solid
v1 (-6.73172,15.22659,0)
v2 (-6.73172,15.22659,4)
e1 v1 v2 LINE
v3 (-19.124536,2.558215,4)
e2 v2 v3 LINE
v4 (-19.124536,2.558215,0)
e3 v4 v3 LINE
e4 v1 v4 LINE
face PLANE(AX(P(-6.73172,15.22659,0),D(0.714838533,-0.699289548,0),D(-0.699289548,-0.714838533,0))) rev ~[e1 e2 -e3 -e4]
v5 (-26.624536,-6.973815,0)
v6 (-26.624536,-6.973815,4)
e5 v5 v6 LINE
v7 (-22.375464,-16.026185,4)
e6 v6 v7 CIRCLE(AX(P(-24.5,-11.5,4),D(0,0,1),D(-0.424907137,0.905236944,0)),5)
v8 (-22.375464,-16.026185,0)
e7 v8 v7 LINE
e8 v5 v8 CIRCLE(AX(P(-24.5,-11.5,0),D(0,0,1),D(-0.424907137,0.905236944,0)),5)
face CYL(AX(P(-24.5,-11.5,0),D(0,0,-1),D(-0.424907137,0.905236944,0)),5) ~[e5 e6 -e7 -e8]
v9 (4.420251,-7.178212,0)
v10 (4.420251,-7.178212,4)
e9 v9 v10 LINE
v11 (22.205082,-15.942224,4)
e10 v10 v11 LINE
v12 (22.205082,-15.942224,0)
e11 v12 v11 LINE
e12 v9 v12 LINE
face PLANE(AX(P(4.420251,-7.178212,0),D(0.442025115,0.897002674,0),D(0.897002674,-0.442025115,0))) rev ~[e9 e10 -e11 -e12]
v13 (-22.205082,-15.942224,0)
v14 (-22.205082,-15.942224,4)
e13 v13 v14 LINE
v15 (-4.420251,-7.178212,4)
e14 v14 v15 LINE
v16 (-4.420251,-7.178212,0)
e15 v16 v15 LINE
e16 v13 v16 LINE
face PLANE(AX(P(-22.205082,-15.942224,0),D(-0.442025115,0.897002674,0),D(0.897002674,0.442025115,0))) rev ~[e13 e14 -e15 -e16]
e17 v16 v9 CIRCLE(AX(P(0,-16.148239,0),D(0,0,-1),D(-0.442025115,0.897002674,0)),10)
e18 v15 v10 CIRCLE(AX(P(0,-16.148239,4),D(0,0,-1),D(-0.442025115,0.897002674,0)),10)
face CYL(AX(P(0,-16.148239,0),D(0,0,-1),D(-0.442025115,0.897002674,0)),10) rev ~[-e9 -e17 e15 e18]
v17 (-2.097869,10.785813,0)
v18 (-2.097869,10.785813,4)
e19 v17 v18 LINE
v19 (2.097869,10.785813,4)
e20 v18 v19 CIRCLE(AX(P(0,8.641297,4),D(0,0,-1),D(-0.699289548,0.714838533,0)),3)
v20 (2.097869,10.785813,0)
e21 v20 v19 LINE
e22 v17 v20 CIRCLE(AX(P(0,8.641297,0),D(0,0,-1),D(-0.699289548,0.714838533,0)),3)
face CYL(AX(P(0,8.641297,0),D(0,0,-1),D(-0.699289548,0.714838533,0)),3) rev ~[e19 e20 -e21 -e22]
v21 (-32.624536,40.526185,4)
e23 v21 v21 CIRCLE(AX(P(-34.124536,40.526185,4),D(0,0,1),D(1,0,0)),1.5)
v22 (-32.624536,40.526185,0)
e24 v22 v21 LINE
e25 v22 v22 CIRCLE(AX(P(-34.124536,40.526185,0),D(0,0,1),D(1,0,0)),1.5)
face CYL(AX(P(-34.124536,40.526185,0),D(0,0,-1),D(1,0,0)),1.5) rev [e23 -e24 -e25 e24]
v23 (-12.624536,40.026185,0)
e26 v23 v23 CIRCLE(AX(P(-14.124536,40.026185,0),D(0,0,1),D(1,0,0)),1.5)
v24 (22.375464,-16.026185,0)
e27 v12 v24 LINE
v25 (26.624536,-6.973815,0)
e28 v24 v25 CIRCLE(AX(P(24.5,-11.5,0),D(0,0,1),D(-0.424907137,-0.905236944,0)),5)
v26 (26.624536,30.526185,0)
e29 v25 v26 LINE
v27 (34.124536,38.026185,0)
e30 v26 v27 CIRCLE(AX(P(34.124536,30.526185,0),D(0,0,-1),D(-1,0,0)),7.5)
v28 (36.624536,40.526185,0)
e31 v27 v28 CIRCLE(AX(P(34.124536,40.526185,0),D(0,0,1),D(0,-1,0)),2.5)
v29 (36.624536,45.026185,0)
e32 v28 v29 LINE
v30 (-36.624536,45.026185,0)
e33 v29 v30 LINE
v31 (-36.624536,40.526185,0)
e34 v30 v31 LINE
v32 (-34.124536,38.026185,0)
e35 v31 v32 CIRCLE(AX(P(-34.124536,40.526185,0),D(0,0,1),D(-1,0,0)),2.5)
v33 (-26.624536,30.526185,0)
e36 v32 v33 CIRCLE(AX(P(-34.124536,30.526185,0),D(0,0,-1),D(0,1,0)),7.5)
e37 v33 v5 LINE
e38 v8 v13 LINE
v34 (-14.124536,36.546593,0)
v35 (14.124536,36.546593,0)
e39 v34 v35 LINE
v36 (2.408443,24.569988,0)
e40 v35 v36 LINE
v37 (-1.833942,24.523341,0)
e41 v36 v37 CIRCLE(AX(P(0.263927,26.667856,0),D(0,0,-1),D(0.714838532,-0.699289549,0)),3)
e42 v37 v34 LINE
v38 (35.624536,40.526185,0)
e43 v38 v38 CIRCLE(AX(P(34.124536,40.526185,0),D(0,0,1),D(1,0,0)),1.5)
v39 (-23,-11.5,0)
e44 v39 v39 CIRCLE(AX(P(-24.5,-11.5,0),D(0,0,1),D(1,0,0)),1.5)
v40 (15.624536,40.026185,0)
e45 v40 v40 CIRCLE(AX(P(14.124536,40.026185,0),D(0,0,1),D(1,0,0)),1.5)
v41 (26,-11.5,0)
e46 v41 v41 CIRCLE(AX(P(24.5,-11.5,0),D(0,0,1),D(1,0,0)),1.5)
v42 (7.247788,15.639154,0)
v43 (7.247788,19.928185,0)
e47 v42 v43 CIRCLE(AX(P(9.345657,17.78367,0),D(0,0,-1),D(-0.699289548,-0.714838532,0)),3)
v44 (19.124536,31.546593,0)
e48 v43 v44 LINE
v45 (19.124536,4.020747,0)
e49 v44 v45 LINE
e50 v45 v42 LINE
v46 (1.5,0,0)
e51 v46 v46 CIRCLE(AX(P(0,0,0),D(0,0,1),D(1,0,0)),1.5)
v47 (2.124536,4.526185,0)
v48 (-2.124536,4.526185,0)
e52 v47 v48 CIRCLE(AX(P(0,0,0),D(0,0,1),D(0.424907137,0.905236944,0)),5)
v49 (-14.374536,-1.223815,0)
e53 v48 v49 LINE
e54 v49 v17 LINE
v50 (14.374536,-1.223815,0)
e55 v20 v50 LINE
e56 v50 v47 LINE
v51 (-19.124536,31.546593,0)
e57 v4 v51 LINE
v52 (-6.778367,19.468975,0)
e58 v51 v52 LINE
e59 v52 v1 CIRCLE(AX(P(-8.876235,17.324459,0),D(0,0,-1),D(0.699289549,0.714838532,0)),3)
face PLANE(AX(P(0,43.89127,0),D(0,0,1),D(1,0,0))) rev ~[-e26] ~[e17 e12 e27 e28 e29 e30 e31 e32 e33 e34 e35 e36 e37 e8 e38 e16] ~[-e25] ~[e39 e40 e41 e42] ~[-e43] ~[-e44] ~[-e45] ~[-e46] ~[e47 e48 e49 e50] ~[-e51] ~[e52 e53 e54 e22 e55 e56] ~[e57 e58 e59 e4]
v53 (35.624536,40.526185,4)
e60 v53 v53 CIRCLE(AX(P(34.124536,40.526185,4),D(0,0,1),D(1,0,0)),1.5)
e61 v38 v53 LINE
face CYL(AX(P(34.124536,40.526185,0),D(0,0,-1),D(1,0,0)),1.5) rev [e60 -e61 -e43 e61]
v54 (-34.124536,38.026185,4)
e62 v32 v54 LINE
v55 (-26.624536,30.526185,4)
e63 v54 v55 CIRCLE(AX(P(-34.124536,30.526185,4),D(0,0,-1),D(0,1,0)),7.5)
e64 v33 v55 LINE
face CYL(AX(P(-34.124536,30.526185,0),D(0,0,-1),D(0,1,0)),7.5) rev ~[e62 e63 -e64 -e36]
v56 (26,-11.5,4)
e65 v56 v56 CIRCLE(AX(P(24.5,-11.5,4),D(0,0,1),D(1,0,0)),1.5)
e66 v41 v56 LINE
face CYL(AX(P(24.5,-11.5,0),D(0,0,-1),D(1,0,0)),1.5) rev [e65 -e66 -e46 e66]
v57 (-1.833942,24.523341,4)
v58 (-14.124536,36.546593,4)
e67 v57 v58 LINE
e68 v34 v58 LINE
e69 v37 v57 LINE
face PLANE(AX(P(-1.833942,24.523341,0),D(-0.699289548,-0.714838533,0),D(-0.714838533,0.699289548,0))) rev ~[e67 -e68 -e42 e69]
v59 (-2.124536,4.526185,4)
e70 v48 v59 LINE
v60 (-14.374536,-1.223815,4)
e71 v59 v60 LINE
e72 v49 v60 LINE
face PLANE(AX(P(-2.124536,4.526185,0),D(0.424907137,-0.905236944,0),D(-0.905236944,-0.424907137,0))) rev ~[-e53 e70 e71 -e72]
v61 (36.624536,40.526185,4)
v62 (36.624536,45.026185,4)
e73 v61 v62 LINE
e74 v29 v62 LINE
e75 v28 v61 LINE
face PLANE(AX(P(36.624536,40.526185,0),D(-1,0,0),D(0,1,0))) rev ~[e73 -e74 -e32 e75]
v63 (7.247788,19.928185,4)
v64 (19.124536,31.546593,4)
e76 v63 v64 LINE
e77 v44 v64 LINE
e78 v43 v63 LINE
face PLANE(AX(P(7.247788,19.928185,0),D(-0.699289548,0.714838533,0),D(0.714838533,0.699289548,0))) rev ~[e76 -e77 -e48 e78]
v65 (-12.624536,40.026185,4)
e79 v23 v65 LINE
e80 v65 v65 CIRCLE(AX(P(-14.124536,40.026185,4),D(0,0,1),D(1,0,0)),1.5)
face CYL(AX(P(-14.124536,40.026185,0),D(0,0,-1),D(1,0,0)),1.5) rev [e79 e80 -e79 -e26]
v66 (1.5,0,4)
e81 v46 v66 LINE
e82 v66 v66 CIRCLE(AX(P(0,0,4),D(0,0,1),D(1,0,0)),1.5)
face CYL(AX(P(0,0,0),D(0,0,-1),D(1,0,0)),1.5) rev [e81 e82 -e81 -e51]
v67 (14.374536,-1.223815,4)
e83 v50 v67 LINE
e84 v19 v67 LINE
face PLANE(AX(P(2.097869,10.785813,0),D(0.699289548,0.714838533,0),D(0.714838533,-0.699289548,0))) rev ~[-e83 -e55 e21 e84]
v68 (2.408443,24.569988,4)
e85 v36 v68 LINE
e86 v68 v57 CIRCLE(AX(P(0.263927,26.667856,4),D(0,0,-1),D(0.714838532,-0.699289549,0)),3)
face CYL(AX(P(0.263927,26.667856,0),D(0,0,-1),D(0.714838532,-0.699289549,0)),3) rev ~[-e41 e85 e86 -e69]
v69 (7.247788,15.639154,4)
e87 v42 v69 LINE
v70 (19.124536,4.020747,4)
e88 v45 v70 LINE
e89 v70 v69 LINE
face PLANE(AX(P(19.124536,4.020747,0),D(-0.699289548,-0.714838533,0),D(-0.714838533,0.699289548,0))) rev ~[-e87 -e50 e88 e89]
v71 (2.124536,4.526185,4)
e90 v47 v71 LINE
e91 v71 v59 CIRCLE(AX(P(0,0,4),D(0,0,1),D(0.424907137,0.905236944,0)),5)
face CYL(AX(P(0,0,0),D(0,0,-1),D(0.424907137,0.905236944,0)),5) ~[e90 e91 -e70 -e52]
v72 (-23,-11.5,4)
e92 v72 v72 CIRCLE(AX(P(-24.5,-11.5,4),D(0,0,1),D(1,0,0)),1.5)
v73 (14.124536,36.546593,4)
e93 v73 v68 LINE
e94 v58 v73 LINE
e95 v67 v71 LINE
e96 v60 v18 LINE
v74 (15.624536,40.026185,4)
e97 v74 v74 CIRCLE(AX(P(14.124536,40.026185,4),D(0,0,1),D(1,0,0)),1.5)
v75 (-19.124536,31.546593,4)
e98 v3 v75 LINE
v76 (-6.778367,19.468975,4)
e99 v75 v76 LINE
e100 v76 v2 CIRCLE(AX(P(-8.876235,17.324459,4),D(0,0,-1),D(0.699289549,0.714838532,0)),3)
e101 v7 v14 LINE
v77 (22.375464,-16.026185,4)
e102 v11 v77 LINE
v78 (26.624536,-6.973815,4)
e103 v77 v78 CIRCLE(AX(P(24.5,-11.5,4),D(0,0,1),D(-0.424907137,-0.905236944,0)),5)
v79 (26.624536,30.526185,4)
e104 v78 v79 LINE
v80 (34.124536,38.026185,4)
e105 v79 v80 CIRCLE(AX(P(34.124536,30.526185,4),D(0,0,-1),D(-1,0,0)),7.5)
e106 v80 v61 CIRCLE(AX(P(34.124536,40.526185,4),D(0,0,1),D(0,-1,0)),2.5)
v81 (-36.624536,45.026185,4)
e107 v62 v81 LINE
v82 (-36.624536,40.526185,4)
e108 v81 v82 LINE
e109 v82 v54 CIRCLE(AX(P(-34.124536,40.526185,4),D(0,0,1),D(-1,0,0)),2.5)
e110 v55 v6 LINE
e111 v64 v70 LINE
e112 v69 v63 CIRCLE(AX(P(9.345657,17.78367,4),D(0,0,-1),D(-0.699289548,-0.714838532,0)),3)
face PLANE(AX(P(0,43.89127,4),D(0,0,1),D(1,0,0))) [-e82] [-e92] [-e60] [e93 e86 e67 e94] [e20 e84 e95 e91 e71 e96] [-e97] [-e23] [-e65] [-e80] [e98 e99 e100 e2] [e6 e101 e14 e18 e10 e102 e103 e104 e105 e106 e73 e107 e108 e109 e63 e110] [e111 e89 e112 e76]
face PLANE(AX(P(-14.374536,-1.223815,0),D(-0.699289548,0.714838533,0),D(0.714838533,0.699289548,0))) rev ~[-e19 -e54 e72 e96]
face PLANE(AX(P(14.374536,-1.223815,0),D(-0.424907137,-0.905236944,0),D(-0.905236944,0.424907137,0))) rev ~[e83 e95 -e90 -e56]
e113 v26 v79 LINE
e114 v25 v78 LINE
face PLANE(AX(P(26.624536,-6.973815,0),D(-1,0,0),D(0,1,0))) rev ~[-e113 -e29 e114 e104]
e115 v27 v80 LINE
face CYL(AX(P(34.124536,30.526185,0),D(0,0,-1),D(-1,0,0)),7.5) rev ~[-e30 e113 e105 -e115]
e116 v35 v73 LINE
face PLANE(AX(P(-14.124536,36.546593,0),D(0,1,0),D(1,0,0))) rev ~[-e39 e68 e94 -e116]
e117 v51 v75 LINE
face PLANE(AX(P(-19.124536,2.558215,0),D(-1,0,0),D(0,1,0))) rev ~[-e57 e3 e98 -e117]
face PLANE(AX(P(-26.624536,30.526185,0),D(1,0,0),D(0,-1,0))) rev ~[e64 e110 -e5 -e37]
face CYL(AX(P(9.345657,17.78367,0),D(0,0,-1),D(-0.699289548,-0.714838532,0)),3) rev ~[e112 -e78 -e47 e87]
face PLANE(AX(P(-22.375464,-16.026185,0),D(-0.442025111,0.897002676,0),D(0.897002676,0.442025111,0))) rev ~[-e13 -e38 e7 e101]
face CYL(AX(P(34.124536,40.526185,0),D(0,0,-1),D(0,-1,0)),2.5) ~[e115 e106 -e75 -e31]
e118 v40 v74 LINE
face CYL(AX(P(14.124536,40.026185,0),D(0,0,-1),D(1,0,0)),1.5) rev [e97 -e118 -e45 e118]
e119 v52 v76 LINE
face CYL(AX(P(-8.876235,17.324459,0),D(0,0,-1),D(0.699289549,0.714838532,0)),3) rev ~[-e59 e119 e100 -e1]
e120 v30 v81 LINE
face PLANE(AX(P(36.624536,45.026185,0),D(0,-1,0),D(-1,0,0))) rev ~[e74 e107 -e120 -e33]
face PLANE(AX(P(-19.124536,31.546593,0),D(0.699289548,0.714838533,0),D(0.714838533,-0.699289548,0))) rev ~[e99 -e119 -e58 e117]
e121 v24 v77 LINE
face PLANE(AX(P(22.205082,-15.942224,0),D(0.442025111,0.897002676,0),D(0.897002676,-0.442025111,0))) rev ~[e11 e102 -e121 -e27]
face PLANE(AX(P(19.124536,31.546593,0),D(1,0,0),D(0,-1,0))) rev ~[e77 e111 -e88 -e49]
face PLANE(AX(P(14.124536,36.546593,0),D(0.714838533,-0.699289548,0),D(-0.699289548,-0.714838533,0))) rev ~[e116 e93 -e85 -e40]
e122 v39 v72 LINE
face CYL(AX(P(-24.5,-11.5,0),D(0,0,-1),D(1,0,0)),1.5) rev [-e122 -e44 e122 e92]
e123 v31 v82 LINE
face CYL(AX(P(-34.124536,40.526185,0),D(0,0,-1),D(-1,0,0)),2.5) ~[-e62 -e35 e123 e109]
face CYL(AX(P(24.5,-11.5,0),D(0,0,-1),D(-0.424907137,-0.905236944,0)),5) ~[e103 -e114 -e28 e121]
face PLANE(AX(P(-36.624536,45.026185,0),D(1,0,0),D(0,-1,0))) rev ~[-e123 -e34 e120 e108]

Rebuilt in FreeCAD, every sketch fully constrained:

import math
import FreeCAD as App
import Part
import Sketcher

V = App.Vector
Q = App.Units.Quantity

doc = App.newDocument("Part")
params = doc.addObject("Spreadsheet::Sheet", "Params")
for row, (alias, value) in enumerate([
    ("sketch1_diameter", "3 mm"),
    ("sketch1_radius", "5 mm"),
    ("sketch1_radius2", "10 mm"),
    ("sketch1_radius3", "3 mm"),
    ("sketch1_radius4", "2.5 mm"),
    ("pad1_length", "4 mm"),
], start=1):
    params.set(f"A{row}", alias)
    params.set(f"B{row}", "=" + value)
    params.setAlias(f"B{row}", alias)

body = doc.addObject("PartDesign::Body", "Body")

sketch1 = doc.addObject("Sketcher::SketchObject", "Sketch")
body.addObject(sketch1)
sketch1.AttachmentSupport = (doc.XY_Plane, [""])
sketch1.MapMode = "FlatFace"
sketch1.addGeometry([
    Part.ArcOfCircle(Part.Circle(V(-34.12, 40.53, 0), V(0, 0, 1), 2.5), math.radians(180), math.radians(270)),
    Part.ArcOfCircle(Part.Circle(V(-34.12, 30.53, 0), V(0, 0, 1), 7.5), math.radians(0), math.radians(90)),
    Part.LineSegment(V(-26.62, 30.53, 0), V(-26.62, -6.97, 0)),
    Part.ArcOfCircle(Part.Circle(V(-24.5, -11.5, 0), V(0, 0, 1), 5), math.radians(115), math.radians(295)),
    Part.LineSegment(V(-22.38, -16.03, 0), V(-22.21, -15.94, 0)),
    Part.LineSegment(V(-22.21, -15.94, 0), V(-4.42, -7.18, 0)),
    Part.ArcOfCircle(Part.Circle(V(0, -16.15, 0), V(0, 0, 1), 10), math.radians(64), math.radians(116)),
    Part.LineSegment(V(4.42, -7.18, 0), V(22.21, -15.94, 0)),
    Part.LineSegment(V(22.21, -15.94, 0), V(22.38, -16.03, 0)),
    Part.ArcOfCircle(Part.Circle(V(24.5, -11.5, 0), V(0, 0, 1), 5), math.radians(-115), math.radians(65)),
    Part.LineSegment(V(26.62, -6.97, 0), V(26.62, 30.53, 0)),
    Part.ArcOfCircle(Part.Circle(V(34.12, 30.53, 0), V(0, 0, 1), 7.5), math.radians(90), math.radians(180)),
    Part.ArcOfCircle(Part.Circle(V(34.12, 40.53, 0), V(0, 0, 1), 2.5), math.radians(-90), math.radians(0)),
    Part.LineSegment(V(36.62, 40.53, 0), V(36.62, 45.03, 0)),
    Part.LineSegment(V(36.62, 45.03, 0), V(-36.62, 45.03, 0)),
    Part.LineSegment(V(-36.62, 45.03, 0), V(-36.62, 40.53, 0)),
    Part.Circle(V(-24.5, -11.5, 0), V(0, 0, 1), 1.5),
    Part.Circle(V(0, 0, 0), V(0, 0, 1), 1.5),
    Part.Circle(V(24.5, -11.5, 0), V(0, 0, 1), 1.5),
    Part.LineSegment(V(2.1, 10.79, 0), V(14.37, -1.22, 0)),
    Part.LineSegment(V(14.37, -1.22, 0), V(2.12, 4.53, 0)),
    Part.ArcOfCircle(Part.Circle(V(0, 0, 0), V(0, 0, 1), 5), math.radians(65), math.radians(115)),
    Part.LineSegment(V(-2.12, 4.53, 0), V(-14.37, -1.22, 0)),
    Part.LineSegment(V(-14.37, -1.22, 0), V(-2.1, 10.79, 0)),
    Part.ArcOfCircle(Part.Circle(V(0, 8.64, 0), V(0, 0, 1), 3), math.radians(46), math.radians(134)),
    Part.ArcOfCircle(Part.Circle(V(-8.88, 17.32, 0), V(0, 0, 1), 3), math.radians(-44), math.radians(46)),
    Part.LineSegment(V(-6.73, 15.23, 0), V(-19.12, 2.56, 0)),
    Part.LineSegment(V(-19.12, 2.56, 0), V(-19.12, 31.55, 0)),
    Part.LineSegment(V(-19.12, 31.55, 0), V(-6.78, 19.47, 0)),
    Part.Circle(V(-34.12, 40.53, 0), V(0, 0, 1), 1.5),
    Part.Circle(V(-14.12, 40.03, 0), V(0, 0, 1), 1.5),
    Part.LineSegment(V(7.25, 19.93, 0), V(19.12, 31.55, 0)),
    Part.LineSegment(V(19.12, 31.55, 0), V(19.12, 4.02, 0)),
    Part.LineSegment(V(19.12, 4.02, 0), V(7.25, 15.64, 0)),
    Part.ArcOfCircle(Part.Circle(V(9.35, 17.78, 0), V(0, 0, 1), 3), math.radians(134), math.radians(226)),
    Part.ArcOfCircle(Part.Circle(V(0.26, 26.67, 0), V(0, 0, 1), 3), math.radians(-134), math.radians(-44)),
    Part.LineSegment(V(-1.83, 24.52, 0), V(-14.12, 36.55, 0)),
    Part.LineSegment(V(-14.12, 36.55, 0), V(14.12, 36.55, 0)),
    Part.LineSegment(V(14.12, 36.55, 0), V(2.41, 24.57, 0)),
    Part.Circle(V(14.12, 40.03, 0), V(0, 0, 1), 1.5),
    Part.Circle(V(34.12, 40.53, 0), V(0, 0, 1), 1.5),
], False)
sketch1.addConstraint([
    Sketcher.Constraint("Tangent", 0, 2, 1, 2),
    Sketcher.Constraint("Tangent", 1, 1, 2, 1),
    Sketcher.Constraint("Coincident", 2, 2, 3, 1),
    Sketcher.Constraint("Coincident", 3, 2, 4, 1),
    Sketcher.Constraint("Coincident", 4, 2, 5, 1),
    Sketcher.Constraint("Tangent", 5, 2, 6, 2),
    Sketcher.Constraint("Tangent", 6, 1, 7, 1),
    Sketcher.Constraint("Coincident", 7, 2, 8, 1),
    Sketcher.Constraint("Coincident", 8, 2, 9, 1),
    Sketcher.Constraint("Coincident", 9, 2, 10, 1),
    Sketcher.Constraint("Tangent", 10, 2, 11, 2),
    Sketcher.Constraint("Tangent", 11, 1, 12, 1),
    Sketcher.Constraint("Tangent", 12, 2, 13, 1),
    Sketcher.Constraint("Coincident", 13, 2, 14, 1),
    Sketcher.Constraint("Coincident", 14, 2, 15, 1),
    Sketcher.Constraint("Tangent", 15, 2, 0, 1),
    Sketcher.Constraint("Coincident", 19, 2, 20, 1),
    Sketcher.Constraint("Tangent", 20, 2, 21, 1),
    Sketcher.Constraint("Tangent", 21, 2, 22, 1),
    Sketcher.Constraint("Coincident", 22, 2, 23, 1),
    Sketcher.Constraint("Tangent", 23, 2, 24, 2),
    Sketcher.Constraint("Tangent", 24, 1, 19, 1),
    Sketcher.Constraint("Tangent", 25, 1, 26, 1),
    Sketcher.Constraint("Coincident", 26, 2, 27, 1),
    Sketcher.Constraint("Coincident", 27, 2, 28, 1),
    Sketcher.Constraint("Tangent", 28, 2, 25, 2),
    Sketcher.Constraint("Coincident", 31, 2, 32, 1),
    Sketcher.Constraint("Coincident", 32, 2, 33, 1),
    Sketcher.Constraint("Tangent", 33, 2, 34, 2),
    Sketcher.Constraint("Tangent", 34, 1, 31, 1),
    Sketcher.Constraint("Tangent", 35, 1, 36, 1),
    Sketcher.Constraint("Coincident", 36, 2, 37, 1),
    Sketcher.Constraint("Coincident", 37, 2, 38, 1),
    Sketcher.Constraint("Tangent", 38, 2, 35, 2),
    Sketcher.Constraint("Vertical", 2),
    Sketcher.Constraint("Vertical", 10),
    Sketcher.Constraint("Vertical", 13),
    Sketcher.Constraint("Horizontal", 14),
    Sketcher.Constraint("Vertical", 15),
    Sketcher.Constraint("Vertical", 27),
    Sketcher.Constraint("Vertical", 32),
    Sketcher.Constraint("Horizontal", 37),
    Sketcher.Constraint("Coincident", 17, 3, -1, 1),
    Sketcher.Constraint("Coincident", 21, 3, -1, 1),
    Sketcher.Constraint("Coincident", 16, 3, 3, 3),
    Sketcher.Constraint("Coincident", 18, 3, 9, 3),
    Sketcher.Constraint("Coincident", 29, 3, 0, 3),
    Sketcher.Constraint("Coincident", 40, 3, 12, 3),
    Sketcher.Constraint("Equal", 3, 9),
    Sketcher.Constraint("Equal", 1, 11),
    Sketcher.Constraint("Equal", 0, 12),
    Sketcher.Constraint("Equal", 16, 17),
    Sketcher.Constraint("Equal", 17, 18),
    Sketcher.Constraint("Equal", 9, 21),
    Sketcher.Constraint("Equal", 24, 25),
    Sketcher.Constraint("Equal", 18, 29),
    Sketcher.Constraint("Equal", 29, 30),
    Sketcher.Constraint("Equal", 25, 34),
    Sketcher.Constraint("Equal", 34, 35),
    Sketcher.Constraint("Equal", 30, 39),
    Sketcher.Constraint("Equal", 39, 40),
    Sketcher.Constraint("Symmetric", 3, 3, 9, 3, -2),
    Sketcher.Constraint("Symmetric", 1, 3, 11, 3, -2),
    Sketcher.Constraint("Symmetric", 30, 3, 39, 3, -2),
    Sketcher.Constraint("Symmetric", 5, 2, 6, 1, -2),
    Sketcher.Constraint("Symmetric", 19, 2, 22, 2, -2),
    Sketcher.Constraint("Symmetric", 27, 2, 31, 2, -2),
    Sketcher.Constraint("PointOnObject", 24, 3, -2),
    Sketcher.Constraint("Parallel", 4, 5),
    Sketcher.Constraint("Parallel", 7, 8),
    Sketcher.Constraint("Perpendicular", 19, 26),
    Sketcher.Constraint("Perpendicular", 26, 28),
    Sketcher.Constraint("Parallel", 23, 31),
    Sketcher.Constraint("Parallel", 28, 33),
    Sketcher.Constraint("Parallel", 33, 36),
    Sketcher.Constraint("Perpendicular", 36, 38),
    Sketcher.Constraint("Horizontal", 4, 2, 7, 2),
    Sketcher.Constraint("Vertical", 0, 3, 1, 3),
    Sketcher.Constraint("Vertical", 11, 3, 12, 3),
    Sketcher.Constraint("Vertical", 30, 3, 36, 2),
    Sketcher.Constraint("Vertical", 39, 3, 37, 2),
    Sketcher.Constraint("Diameter", 16, Q("3 mm")),
    Sketcher.Constraint("Radius", 3, Q("5 mm")),
    Sketcher.Constraint("Radius", 6, Q("10 mm")),
    Sketcher.Constraint("Radius", 24, Q("3 mm")),
    Sketcher.Constraint("Radius", 0, Q("2.5 mm")),
    Sketcher.Constraint("Radius", 1, Q("7.5 mm")),
    Sketcher.Constraint("DistanceY", 2, 2, 2, 1, Q("37.5 mm")),
    Sketcher.Constraint("DistanceY", 13, 1, 13, 2, Q("4.5 mm")),
    Sketcher.Constraint("DistanceX", 3, 3, 9, 3, Q("49 mm")),
    Sketcher.Constraint("DistanceX", 0, 3, 30, 3, Q("20 mm")),
    Sketcher.Constraint("DistanceY", 0, 2, 30, 3, Q("2 mm")),
    Sketcher.Constraint("DistanceX", 26, 2, 21, 2, Q("17 mm")),
    Sketcher.Constraint("DistanceX", 27, 2, 30, 3, Q("5 mm")),
    Sketcher.Constraint("DistanceY", 27, 2, 36, 2, Q("5 mm")),
    Sketcher.Constraint("DistanceY", 3, 3, -1, 1, Q("11.5 mm")),
    Sketcher.Constraint("DistanceX", 19, 2, 9, 2, Q("12.25 mm")),
    Sketcher.Constraint("DistanceY", 9, 2, 19, 2, Q("5.75 mm")),
    Sketcher.Constraint("DistanceX", 1, 3, 25, 3, Q("25.2483 mm")),
    Sketcher.Constraint("Distance", 26, Q("17.722009 mm")),
    Sketcher.Constraint("DistanceY", 32, 2, 32, 1, Q("27.525846 mm")),
    Sketcher.Constraint("DistanceY", 6, 3, -1, 1, Q("16.148239 mm")),
    Sketcher.Constraint("DistanceY", -1, 1, 25, 3, Q("17.324459 mm")),
    Sketcher.Constraint("DistanceX", 5, 2, -1, 1, Q("4.420251 mm")),
    Sketcher.Constraint("DistanceY", 3, 2, 4, 2, Q("0.083961 mm")),
])
sketch1.setExpression("Constraints[81]", "Params.sketch1_diameter")
sketch1.setExpression("Constraints[82]", "Params.sketch1_radius")
sketch1.setExpression("Constraints[83]", "Params.sketch1_radius2")
sketch1.setExpression("Constraints[84]", "Params.sketch1_radius3")
sketch1.setExpression("Constraints[85]", "Params.sketch1_radius4")
pad1 = doc.addObject("PartDesign::Pad", "Pad")
body.addObject(pad1)
pad1.Profile = sketch1
pad1.setExpression("Length", "Params.pad1_length")

doc.recompute()
